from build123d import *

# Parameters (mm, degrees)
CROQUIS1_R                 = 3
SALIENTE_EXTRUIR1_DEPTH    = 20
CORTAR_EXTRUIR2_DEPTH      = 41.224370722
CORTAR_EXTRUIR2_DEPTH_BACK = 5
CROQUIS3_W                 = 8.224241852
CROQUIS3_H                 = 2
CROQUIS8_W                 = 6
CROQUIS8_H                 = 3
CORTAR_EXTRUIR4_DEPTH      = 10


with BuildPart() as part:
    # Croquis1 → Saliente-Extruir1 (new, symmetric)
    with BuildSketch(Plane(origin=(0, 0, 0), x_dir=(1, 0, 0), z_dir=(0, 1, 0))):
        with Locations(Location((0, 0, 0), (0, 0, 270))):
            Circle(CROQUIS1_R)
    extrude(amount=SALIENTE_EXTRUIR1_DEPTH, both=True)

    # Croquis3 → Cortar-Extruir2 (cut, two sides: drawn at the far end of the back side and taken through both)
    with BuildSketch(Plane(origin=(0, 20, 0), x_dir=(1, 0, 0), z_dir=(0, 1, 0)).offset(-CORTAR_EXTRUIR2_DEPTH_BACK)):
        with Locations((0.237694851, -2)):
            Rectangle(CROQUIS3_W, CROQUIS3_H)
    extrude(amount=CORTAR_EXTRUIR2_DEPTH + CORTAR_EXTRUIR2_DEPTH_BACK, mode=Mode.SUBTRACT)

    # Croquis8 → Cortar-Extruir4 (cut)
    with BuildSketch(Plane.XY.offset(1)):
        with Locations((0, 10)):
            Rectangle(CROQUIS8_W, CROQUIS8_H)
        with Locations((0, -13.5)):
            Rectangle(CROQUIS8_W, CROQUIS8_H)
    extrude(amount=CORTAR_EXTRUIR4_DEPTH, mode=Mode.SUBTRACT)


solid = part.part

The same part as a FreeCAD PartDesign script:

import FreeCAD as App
import Part
import Sketcher
from FreeCAD import Vector
Q = App.Units.Quantity


def add_polygon(sketch, points):
    """Adds a closed chain of lines whose ends are joined by coincident constraints."""
    first, n = sketch.GeometryCount, len(points)
    for a, b in zip(points, points[1:] + points[:1]):
        sketch.addGeometry(Part.LineSegment(App.Vector(*a, 0), App.Vector(*b, 0)), False)
    for i in range(n):
        sketch.addConstraint(Sketcher.Constraint("Coincident", first + i, 2, first + (i + 1) % n, 1))

doc = App.newDocument("Part")
body = doc.addObject("PartDesign::Body", "Body")

# Sketch on XZ plane
sketch1 = body.newObject("Sketcher::SketchObject", "Sketch")
sketch1.AttachmentSupport = (doc.getObject("XZ_Plane"), [""])
sketch1.MapMode = "FlatFace"
sketch1.addGeometry(Part.Circle(Vector(0, 0, 0), Vector(0, 0, 1), 3), False)
sketch1.addConstraint([
    Sketcher.Constraint("Coincident", 0, 3, -1, 1),
    Sketcher.Constraint("Diameter", 0, Q("6 mm")),
])
pad1 = body.newObject("PartDesign::Pad", "Pad")
pad1.Profile = sketch1
pad1.Length = 40
pad1.Midplane = True

# Sketch on XZ plane
sketch2 = body.newObject("Sketcher::SketchObject", "Sketch001")
sketch2.AttachmentSupport = (doc.getObject("XZ_Plane"), [""])
sketch2.MapMode = "FlatFace"
sketch2.AttachmentOffset = App.Placement(Vector(0, 0, -20), App.Rotation())
add_polygon(sketch2, [(-3.9, 1), (-3.9, 3), (4.3, 3), (4.3, 1)])  # lines 0-3
sketch2.addConstraint([
    Sketcher.Constraint("Vertical", 0),
    Sketcher.Constraint("Horizontal", 1),
    Sketcher.Constraint("Vertical", 2),
    Sketcher.Constraint("Horizontal", 3),
    Sketcher.Constraint("DistanceY", 0, 1, 0, 2, Q("2 mm")),
    Sketcher.Constraint("DistanceY", -1, 1, 0, 2, Q("3 mm")),
    Sketcher.Constraint("DistanceX", 1, 1, 1, 2, Q("8.224242 mm")),
    Sketcher.Constraint("DistanceX", 0, 2, -1, 1, Q("3.874426 mm")),
])
pocket1 = body.newObject("PartDesign::Pocket", "Pocket")
pocket1.Profile = sketch2
pocket1.Type = "TwoLengths"
pocket1.Length = 41.224371
pocket1.Length2 = 5

# Sketch on XY plane
sketch3 = body.newObject("Sketcher::SketchObject", "Sketch002")
sketch3.AttachmentSupport = (doc.getObject("XY_Plane"), [""])
sketch3.MapMode = "FlatFace"
sketch3.AttachmentOffset = App.Placement(Vector(0, 0, 1), App.Rotation())
add_polygon(sketch3, [(-3, 11.5), (-3, 8.5), (3, 8.5), (3, 11.5)])  # lines 0-3
add_polygon(sketch3, [(-3, -12), (-3, -15), (3, -15), (3, -12)])  # lines 4-7
sketch3.addConstraint([
    Sketcher.Constraint("Vertical", 0),
    Sketcher.Constraint("Horizontal", 1),
    Sketcher.Constraint("Vertical", 2),
    Sketcher.Constraint("Horizontal", 3),
    Sketcher.Constraint("Vertical", 4),
    Sketcher.Constraint("Horizontal", 5),
    Sketcher.Constraint("Vertical", 6),
    Sketcher.Constraint("Horizontal", 7),
    Sketcher.Constraint("Vertical", 3, 2, 4, 2),
    Sketcher.Constraint("Vertical", 2, 2, 5, 2),
    Sketcher.Constraint("Equal", 2, 4),
    Sketcher.Constraint("DistanceX", 1, 1, 1, 2, Q("6 mm")),
    Sketcher.Constraint("DistanceY", 0, 2, 0, 1, Q("3 mm")),
    Sketcher.Constraint("DistanceX", 0, 2, -1, 1, Q("3 mm")),
    Sketcher.Constraint("DistanceY", 4, 2, -1, 1, Q("15 mm")),
    Sketcher.Constraint("DistanceY", -1, 1, 0, 2, Q("8.5 mm")),
])
pocket2 = body.newObject("PartDesign::Pocket", "Pocket001")
pocket2.Profile = sketch3
pocket2.Length = 10
pocket2.Reversed = True

doc.recompute()
